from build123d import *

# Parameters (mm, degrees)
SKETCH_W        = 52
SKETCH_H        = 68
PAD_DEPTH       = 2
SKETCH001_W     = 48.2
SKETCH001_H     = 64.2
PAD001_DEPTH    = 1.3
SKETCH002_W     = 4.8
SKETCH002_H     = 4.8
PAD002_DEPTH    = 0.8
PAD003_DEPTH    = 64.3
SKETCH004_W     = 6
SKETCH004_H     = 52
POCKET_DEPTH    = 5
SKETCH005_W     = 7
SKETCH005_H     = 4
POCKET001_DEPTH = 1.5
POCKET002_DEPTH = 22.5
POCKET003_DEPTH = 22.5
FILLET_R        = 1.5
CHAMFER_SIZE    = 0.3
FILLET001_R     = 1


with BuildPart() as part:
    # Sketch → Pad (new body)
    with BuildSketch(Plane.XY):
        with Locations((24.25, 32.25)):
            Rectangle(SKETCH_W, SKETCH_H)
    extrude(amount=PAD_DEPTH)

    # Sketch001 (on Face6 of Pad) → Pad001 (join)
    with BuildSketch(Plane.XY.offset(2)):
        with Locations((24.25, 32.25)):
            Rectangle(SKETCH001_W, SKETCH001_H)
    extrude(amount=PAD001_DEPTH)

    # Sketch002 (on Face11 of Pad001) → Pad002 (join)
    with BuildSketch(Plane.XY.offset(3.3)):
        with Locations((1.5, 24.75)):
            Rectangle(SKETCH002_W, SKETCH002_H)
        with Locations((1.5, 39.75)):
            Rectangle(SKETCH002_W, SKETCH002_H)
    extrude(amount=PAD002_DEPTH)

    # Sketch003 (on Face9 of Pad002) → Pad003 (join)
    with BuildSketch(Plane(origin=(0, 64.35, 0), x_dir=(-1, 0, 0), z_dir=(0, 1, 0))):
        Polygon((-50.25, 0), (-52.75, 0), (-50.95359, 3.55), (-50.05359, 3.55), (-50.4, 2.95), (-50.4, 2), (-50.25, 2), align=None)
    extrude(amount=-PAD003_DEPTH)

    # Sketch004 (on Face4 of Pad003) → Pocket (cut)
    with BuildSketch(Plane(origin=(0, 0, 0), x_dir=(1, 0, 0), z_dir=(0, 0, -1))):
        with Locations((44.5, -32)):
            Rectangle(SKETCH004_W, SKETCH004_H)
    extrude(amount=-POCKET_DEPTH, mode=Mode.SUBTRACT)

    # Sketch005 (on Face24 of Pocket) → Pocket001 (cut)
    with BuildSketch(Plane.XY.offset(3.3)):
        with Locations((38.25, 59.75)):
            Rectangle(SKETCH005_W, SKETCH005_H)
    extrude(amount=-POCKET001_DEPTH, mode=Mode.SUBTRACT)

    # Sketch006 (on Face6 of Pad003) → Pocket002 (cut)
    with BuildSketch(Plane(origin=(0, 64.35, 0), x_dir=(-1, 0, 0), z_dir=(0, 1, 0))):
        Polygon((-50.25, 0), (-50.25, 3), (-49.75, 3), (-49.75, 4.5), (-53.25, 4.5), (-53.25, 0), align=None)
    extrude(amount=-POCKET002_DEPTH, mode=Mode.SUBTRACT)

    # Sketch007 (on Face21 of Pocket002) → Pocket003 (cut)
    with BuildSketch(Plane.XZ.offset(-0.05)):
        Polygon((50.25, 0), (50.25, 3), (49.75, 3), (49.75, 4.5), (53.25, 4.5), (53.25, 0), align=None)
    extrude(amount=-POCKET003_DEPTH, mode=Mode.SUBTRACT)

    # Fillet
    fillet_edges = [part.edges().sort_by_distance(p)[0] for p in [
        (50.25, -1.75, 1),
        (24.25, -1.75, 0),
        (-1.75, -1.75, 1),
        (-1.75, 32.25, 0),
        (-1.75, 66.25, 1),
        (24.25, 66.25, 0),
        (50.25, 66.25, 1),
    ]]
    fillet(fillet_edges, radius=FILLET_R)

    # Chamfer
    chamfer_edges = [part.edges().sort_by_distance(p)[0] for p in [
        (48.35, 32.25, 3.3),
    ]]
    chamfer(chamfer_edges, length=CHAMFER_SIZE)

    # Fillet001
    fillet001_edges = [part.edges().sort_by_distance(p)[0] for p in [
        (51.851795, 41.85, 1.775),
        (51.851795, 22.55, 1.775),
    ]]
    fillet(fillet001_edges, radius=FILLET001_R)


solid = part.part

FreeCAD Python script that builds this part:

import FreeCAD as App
import Part
import Sketcher
Q = App.Units.Quantity


def edges_at(feature, points):
    """Names of the edges that pass closest to the given points."""
    edges = feature.Shape.Edges
    near = lambda p: min(range(len(edges)), key=lambda i: edges[i].distToShape(Part.Vertex(*p))[0])
    return sorted({f"Edge{near(p) + 1}" for p in points})

doc = App.newDocument("Part")
body = doc.addObject("PartDesign::Body", "Body")

# Sketch on XY plane
sketch1 = body.newObject("Sketcher::SketchObject", "Sketch")
sketch1.AttachmentSupport = (doc.getObject("XY_Plane"), [""])
sketch1.MapMode = "FlatFace"
sketch1.addGeometry([
    Part.LineSegment(App.Vector(-2, 66, 0), App.Vector(-2, -2, 0)),
    Part.LineSegment(App.Vector(-2, -2, 0), App.Vector(50, -2, 0)),
    Part.LineSegment(App.Vector(50, -2, 0), App.Vector(50, 66, 0)),
    Part.LineSegment(App.Vector(50, 66, 0), App.Vector(-2, 66, 0)),
], False)
sketch1.addConstraint([
    Sketcher.Constraint("Coincident", 0, 2, 1, 1),
    Sketcher.Constraint("Coincident", 1, 2, 2, 1),
    Sketcher.Constraint("Coincident", 2, 2, 3, 1),
    Sketcher.Constraint("Coincident", 3, 2, 0, 1),
    Sketcher.Constraint("Vertical", 0),
    Sketcher.Constraint("Horizontal", 1),
    Sketcher.Constraint("Vertical", 2),
    Sketcher.Constraint("Horizontal", 3),
    Sketcher.Constraint("DistanceX", 1, 1, 1, 2, Q("52 mm")),
    Sketcher.Constraint("DistanceY", 0, 2, 0, 1, Q("68 mm")),
    Sketcher.Constraint("DistanceX", 0, 2, -1, 1, Q("1.75 mm")),
    Sketcher.Constraint("DistanceY", 0, 2, -1, 1, Q("1.75 mm")),
])
pad1 = body.newObject("PartDesign::Pad", "Pad")
pad1.Profile = sketch1
pad1.Length = 2

# Sketch on XY plane
sketch2 = body.newObject("Sketcher::SketchObject", "Sketch001")
sketch2.AttachmentSupport = (doc.getObject("XY_Plane"), [""])
sketch2.MapMode = "FlatFace"
sketch2.AttachmentOffset = App.Placement(App.Vector(0, 0, 2), App.Rotation())
sketch2.addGeometry([
    Part.LineSegment(App.Vector(0, 64, 0), App.Vector(0, 0, 0)),
    Part.LineSegment(App.Vector(0, 0, 0), App.Vector(48, 0, 0)),
    Part.LineSegment(App.Vector(48, 0, 0), App.Vector(48, 64, 0)),
    Part.LineSegment(App.Vector(48, 64, 0), App.Vector(0, 64, 0)),
], False)
sketch2.addConstraint([
    Sketcher.Constraint("Coincident", 0, 2, 1, 1),
    Sketcher.Constraint("Coincident", 1, 2, 2, 1),
    Sketcher.Constraint("Coincident", 2, 2, 3, 1),
    Sketcher.Constraint("Coincident", 3, 2, 0, 1),
    Sketcher.Constraint("Vertical", 0),
    Sketcher.Constraint("Horizontal", 1),
    Sketcher.Constraint("Vertical", 2),
    Sketcher.Constraint("Horizontal", 3),
    Sketcher.Constraint("DistanceX", 1, 1, 1, 2, Q("48.2 mm")),
    Sketcher.Constraint("DistanceY", 0, 2, 0, 1, Q("64.2 mm")),
    Sketcher.Constraint("DistanceX", -1, 1, 0, 2, Q("0.15 mm")),
    Sketcher.Constraint("DistanceY", -1, 1, 0, 2, Q("0.15 mm")),
])
pad2 = body.newObject("PartDesign::Pad", "Pad001")
pad2.Profile = sketch2
pad2.Length = 1.3

# Sketch on XY plane
sketch3 = body.newObject("Sketcher::SketchObject", "Sketch002")
sketch3.AttachmentSupport = (doc.getObject("XY_Plane"), [""])
sketch3.MapMode = "FlatFace"
sketch3.AttachmentOffset = App.Placement(App.Vector(0, 0, 3.3), App.Rotation())
sketch3.addGeometry([
    Part.LineSegment(App.Vector(-0.9, 27.1, 0), App.Vector(-0.9, 22.4, 0)),  # 0
    Part.LineSegment(App.Vector(-0.9, 22.4, 0), App.Vector(3.9, 22.4, 0)),  # 1
    Part.LineSegment(App.Vector(3.9, 22.4, 0), App.Vector(3.9, 27.1, 0)),  # 2
    Part.LineSegment(App.Vector(3.9, 27.1, 0), App.Vector(-0.9, 27.1, 0)),  # 3
    Part.LineSegment(App.Vector(-0.9, 42.1, 0), App.Vector(-0.9, 37.4, 0)),  # 4
    Part.LineSegment(App.Vector(-0.9, 37.4, 0), App.Vector(3.9, 37.4, 0)),  # 5
    Part.LineSegment(App.Vector(3.9, 37.4, 0), App.Vector(3.9, 42.1, 0)),  # 6
    Part.LineSegment(App.Vector(3.9, 42.1, 0), App.Vector(-0.9, 42.1, 0)),  # 7
], False)
sketch3.addConstraint([
    Sketcher.Constraint("Coincident", 0, 2, 1, 1),
    Sketcher.Constraint("Coincident", 1, 2, 2, 1),
    Sketcher.Constraint("Coincident", 2, 2, 3, 1),
    Sketcher.Constraint("Coincident", 3, 2, 0, 1),
    Sketcher.Constraint("Coincident", 4, 2, 5, 1),
    Sketcher.Constraint("Coincident", 5, 2, 6, 1),
    Sketcher.Constraint("Coincident", 6, 2, 7, 1),
    Sketcher.Constraint("Coincident", 7, 2, 4, 1),
    Sketcher.Constraint("Vertical", 0),
    Sketcher.Constraint("Horizontal", 1),
    Sketcher.Constraint("Vertical", 2),
    Sketcher.Constraint("Horizontal", 3),
    Sketcher.Constraint("Vertical", 4),
    Sketcher.Constraint("Horizontal", 5),
    Sketcher.Constraint("Vertical", 6),
    Sketcher.Constraint("Horizontal", 7),
    Sketcher.Constraint("Vertical", 3, 2, 4, 2),
    Sketcher.Constraint("Vertical", 2, 2, 5, 2),
    Sketcher.Constraint("Equal", 7, 0),
    Sketcher.Constraint("Equal", 2, 4),
    Sketcher.Constraint("DistanceX", 1, 1, 1, 2, Q("4.8 mm")),
    Sketcher.Constraint("DistanceY", 0, 2, 4, 2, Q("15 mm")),
    Sketcher.Constraint("DistanceX", 0, 2, -1, 1, Q("0.9 mm")),
    Sketcher.Constraint("DistanceY", -1, 1, 0, 2, Q("22.35 mm")),
])
pad3 = body.newObject("PartDesign::Pad", "Pad002")
pad3.Profile = sketch3
pad3.Length = 0.8

# Sketch on XZ plane
sketch4 = body.newObject("Sketcher::SketchObject", "Sketch003")
sketch4.AttachmentSupport = (doc.getObject("XZ_Plane"), [""])
sketch4.MapMode = "FlatFace"
sketch4.AttachmentOffset = App.Placement(App.Vector(0, 0, -64.35), App.Rotation())
sketch4.addGeometry([
    Part.LineSegment(App.Vector(52.75, 0, 0), App.Vector(50.25, 0, 0)),  # 0
    Part.LineSegment(App.Vector(50.25, 0, 0), App.Vector(50.25, 2, 0)),  # 1
    Part.LineSegment(App.Vector(50.25, 2, 0), App.Vector(50.4, 2, 0)),  # 2
    Part.LineSegment(App.Vector(50.4, 2, 0), App.Vector(50.4, 2.95, 0)),  # 3
    Part.LineSegment(App.Vector(50.4, 2.95, 0), App.Vector(50.05, 3.55, 0)),  # 4
    Part.LineSegment(App.Vector(50.05, 3.55, 0), App.Vector(50.95, 3.55, 0)),  # 5
    Part.LineSegment(App.Vector(50.95, 3.55, 0), App.Vector(52.75, 0, 0)),  # 6
], False)
sketch4.addConstraint([
    Sketcher.Constraint("Coincident", 0, 2, 1, 1),
    Sketcher.Constraint("Coincident", 1, 2, 2, 1),
    Sketcher.Constraint("Coincident", 2, 2, 3, 1),
    Sketcher.Constraint("Coincident", 3, 2, 4, 1),
    Sketcher.Constraint("Coincident", 4, 2, 5, 1),
    Sketcher.Constraint("Coincident", 5, 2, 6, 1),
    Sketcher.Constraint("Coincident", 6, 2, 0, 1),
    Sketcher.Constraint("Horizontal", 0),
    Sketcher.Constraint("Vertical", 1),
    Sketcher.Constraint("Horizontal", 2),
    Sketcher.Constraint("Vertical", 3),
    Sketcher.Constraint("Horizontal", 5),
    Sketcher.Constraint("PointOnObject", 0, 2, -1),
    Sketcher.Constraint("DistanceY", 1, 1, 1, 2, Q("2 mm")),
    Sketcher.Constraint("Angle", 4, Q("119.999988 deg")),
    Sketcher.Constraint("DistanceX", 0, 2, 0, 1, Q("2.5 mm")),
    Sketcher.Constraint("DistanceX", 5, 1, 5, 2, Q("0.9 mm")),
    Sketcher.Constraint("DistanceX", 2, 1, 2, 2, Q("0.15 mm")),
    Sketcher.Constraint("DistanceY", 3, 1, 3, 2, Q("0.95 mm")),
    Sketcher.Constraint("DistanceX", -1, 1, 2, 2, Q("50.4 mm")),
    Sketcher.Constraint("DistanceY", 3, 2, 4, 2, Q("0.6 mm")),
])
pad4 = body.newObject("PartDesign::Pad", "Pad003")
pad4.Profile = sketch4
pad4.Length = 64.3

# Sketch on XY plane
sketch5 = body.newObject("Sketcher::SketchObject", "Sketch004")
sketch5.AttachmentSupport = (doc.getObject("XY_Plane"), [""])
sketch5.MapMode = "FlatFace"
sketch5.addGeometry([
    Part.LineSegment(App.Vector(42, 6, 0), App.Vector(42, 58, 0)),
    Part.LineSegment(App.Vector(42, 58, 0), App.Vector(48, 58, 0)),
    Part.LineSegment(App.Vector(48, 58, 0), App.Vector(48, 6, 0)),
    Part.LineSegment(App.Vector(48, 6, 0), App.Vector(42, 6, 0)),
], False)
sketch5.addConstraint([
    Sketcher.Constraint("Coincident", 0, 2, 1, 1),
    Sketcher.Constraint("Coincident", 1, 2, 2, 1),
    Sketcher.Constraint("Coincident", 2, 2, 3, 1),
    Sketcher.Constraint("Coincident", 3, 2, 0, 1),
    Sketcher.Constraint("Vertical", 0),
    Sketcher.Constraint("Horizontal", 1),
    Sketcher.Constraint("Vertical", 2),
    Sketcher.Constraint("Horizontal", 3),
    Sketcher.Constraint("DistanceX", 1, 1, 1, 2, Q("6 mm")),
    Sketcher.Constraint("DistanceY", 0, 1, 0, 2, Q("52 mm")),
    Sketcher.Constraint("DistanceY", -1, 1, 0, 2, Q("58 mm")),
    Sketcher.Constraint("DistanceX", -1, 1, 0, 2, Q("41.5 mm")),
])
pocket1 = body.newObject("PartDesign::Pocket", "Pocket")
pocket1.Profile = sketch5
pocket1.Length = 5
pocket1.Reversed = True

# Sketch on XY plane
sketch6 = body.newObject("Sketcher::SketchObject", "Sketch005")
sketch6.AttachmentSupport = (doc.getObject("XY_Plane"), [""])
sketch6.MapMode = "FlatFace"
sketch6.AttachmentOffset = App.Placement(App.Vector(0, 0, 3.3), App.Rotation())
sketch6.addGeometry([
    Part.LineSegment(App.Vector(34.8, 61.8, 0), App.Vector(34.8, 57.8, 0)),
    Part.LineSegment(App.Vector(34.8, 57.8, 0), App.Vector(41.8, 57.8, 0)),
    Part.LineSegment(App.Vector(41.8, 57.8, 0), App.Vector(41.8, 61.8, 0)),
    Part.LineSegment(App.Vector(41.8, 61.8, 0), App.Vector(34.8, 61.8, 0)),
], False)
sketch6.addConstraint([
    Sketcher.Constraint("Coincident", 0, 2, 1, 1),
    Sketcher.Constraint("Coincident", 1, 2, 2, 1),
    Sketcher.Constraint("Coincident", 2, 2, 3, 1),
    Sketcher.Constraint("Coincident", 3, 2, 0, 1),
    Sketcher.Constraint("Vertical", 0),
    Sketcher.Constraint("Horizontal", 1),
    Sketcher.Constraint("Vertical", 2),
    Sketcher.Constraint("Horizontal", 3),
    Sketcher.Constraint("DistanceX", 1, 1, 1, 2, Q("7 mm")),
    Sketcher.Constraint("DistanceY", 0, 2, 0, 1, Q("4 mm")),
    Sketcher.Constraint("DistanceX", -1, 1, 0, 2, Q("34.75 mm")),
    Sketcher.Constraint("DistanceY", -1, 1, 0, 2, Q("57.75 mm")),
])
pocket2 = body.newObject("PartDesign::Pocket", "Pocket001")
pocket2.Profile = sketch6
pocket2.Length = 1.5

# Sketch on XZ plane
sketch7 = body.newObject("Sketcher::SketchObject", "Sketch006")
sketch7.AttachmentSupport = (doc.getObject("XZ_Plane"), [""])
sketch7.MapMode = "FlatFace"
sketch7.AttachmentOffset = App.Placement(App.Vector(0, 0, -64.35), App.Rotation())
sketch7.addGeometry([
    Part.LineSegment(App.Vector(50.2, 0, 0), App.Vector(50.2, 3, 0)),  # 0
    Part.LineSegment(App.Vector(50.2, 3, 0), App.Vector(49.8, 3, 0)),  # 1
    Part.LineSegment(App.Vector(49.8, 3, 0), App.Vector(49.8, 4.5, 0)),  # 2
    Part.LineSegment(App.Vector(49.8, 4.5, 0), App.Vector(53.2, 4.5, 0)),  # 3
    Part.LineSegment(App.Vector(53.2, 4.5, 0), App.Vector(53.2, 0, 0)),  # 4
    Part.LineSegment(App.Vector(53.2, 0, 0), App.Vector(50.2, 0, 0)),  # 5
], False)
sketch7.addConstraint([
    Sketcher.Constraint("Coincident", 0, 2, 1, 1),
    Sketcher.Constraint("Coincident", 1, 2, 2, 1),
    Sketcher.Constraint("Coincident", 2, 2, 3, 1),
    Sketcher.Constraint("Coincident", 3, 2, 4, 1),
    Sketcher.Constraint("Coincident", 4, 2, 5, 1),
    Sketcher.Constraint("Coincident", 5, 2, 0, 1),
    Sketcher.Constraint("Vertical", 0),
    Sketcher.Constraint("Horizontal", 1),
    Sketcher.Constraint("Vertical", 2),
    Sketcher.Constraint("Horizontal", 3),
    Sketcher.Constraint("Vertical", 4),
    Sketcher.Constraint("Horizontal", 5),
    Sketcher.Constraint("PointOnObject", 4, 2, -1),
    Sketcher.Constraint("Equal", 5, 0),
    Sketcher.Constraint("DistanceX", 5, 2, 5, 1, Q("3 mm")),
    Sketcher.Constraint("DistanceX", 1, 2, 1, 1, Q("0.5 mm")),
    Sketcher.Constraint("DistanceY", 2, 1, 2, 2, Q("1.5 mm")),
    Sketcher.Constraint("DistanceX", -1, 1, 0, 2, Q("50.25 mm")),
])
pocket3 = body.newObject("PartDesign::Pocket", "Pocket002")
pocket3.Profile = sketch7
pocket3.Length = 22.5
pocket3.Reversed = True

# Sketch on XZ plane
sketch8 = body.newObject("Sketcher::SketchObject", "Sketch007")
sketch8.AttachmentSupport = (doc.getObject("XZ_Plane"), [""])
sketch8.MapMode = "FlatFace"
sketch8.AttachmentOffset = App.Placement(App.Vector(0, 0, -0.05), App.Rotation())
sketch8.addGeometry([
    Part.LineSegment(App.Vector(50.2, 3, 0), App.Vector(50.2, 0, 0)),  # 0
    Part.LineSegment(App.Vector(50.2, 0, 0), App.Vector(53.2, 0, 0)),  # 1
    Part.LineSegment(App.Vector(53.2, 0, 0), App.Vector(53.2, 4.5, 0)),  # 2
    Part.LineSegment(App.Vector(53.2, 4.5, 0), App.Vector(49.8, 4.5, 0)),  # 3
    Part.LineSegment(App.Vector(49.8, 4.5, 0), App.Vector(49.8, 3, 0)),  # 4
    Part.LineSegment(App.Vector(49.8, 3, 0), App.Vector(50.2, 3, 0)),  # 5
], False)
sketch8.addConstraint([
    Sketcher.Constraint("Coincident", 0, 2, 1, 1),
    Sketcher.Constraint("Coincident", 1, 2, 2, 1),
    Sketcher.Constraint("Coincident", 2, 2, 3, 1),
    Sketcher.Constraint("Coincident", 3, 2, 4, 1),
    Sketcher.Constraint("Coincident", 4, 2, 5, 1),
    Sketcher.Constraint("Coincident", 5, 2, 0, 1),
    Sketcher.Constraint("Vertical", 0),
    Sketcher.Constraint("Horizontal", 1),
    Sketcher.Constraint("Vertical", 2),
    Sketcher.Constraint("Horizontal", 3),
    Sketcher.Constraint("Vertical", 4),
    Sketcher.Constraint("Horizontal", 5),
    Sketcher.Constraint("PointOnObject", 0, 2, -1),
    Sketcher.Constraint("Equal", 1, 0),
    Sketcher.Constraint("DistanceX", 1, 1, 1, 2, Q("3 mm")),
    Sketcher.Constraint("DistanceX", 3, 2, 3, 1, Q("3.5 mm")),
    Sketcher.Constraint("DistanceY", 2, 1, 2, 2, Q("4.5 mm")),
    Sketcher.Constraint("DistanceX", -1, 1, 0, 2, Q("50.25 mm")),
])
pocket4 = body.newObject("PartDesign::Pocket", "Pocket003")
pocket4.Profile = sketch8
pocket4.Length = 22.5
doc.recompute()

fillet = body.newObject("PartDesign::Fillet", "Fillet")
fillet.Base = (pocket4, edges_at(pocket4, [
    (50.25, -1.75, 1),
    (24.25, -1.75, 0),
    (-1.75, -1.75, 1),
    (-1.75, 32.25, 0),
    (-1.75, 66.25, 1),
    (24.25, 66.25, 0),
    (50.25, 66.25, 1),
]))
fillet.Radius = 1.5
doc.recompute()

chamfer = body.newObject("PartDesign::Chamfer", "Chamfer")
chamfer.Base = (fillet, edges_at(fillet, [(48.35, 32.25, 3.3)]))
chamfer.Size = 0.3
doc.recompute()

fillet2 = body.newObject("PartDesign::Fillet", "Fillet001")
fillet2.Base = (chamfer, edges_at(chamfer, [(51.852, 41.85, 1.775), (51.852, 22.55, 1.775)]))
fillet2.Radius = 1

doc.recompute()
